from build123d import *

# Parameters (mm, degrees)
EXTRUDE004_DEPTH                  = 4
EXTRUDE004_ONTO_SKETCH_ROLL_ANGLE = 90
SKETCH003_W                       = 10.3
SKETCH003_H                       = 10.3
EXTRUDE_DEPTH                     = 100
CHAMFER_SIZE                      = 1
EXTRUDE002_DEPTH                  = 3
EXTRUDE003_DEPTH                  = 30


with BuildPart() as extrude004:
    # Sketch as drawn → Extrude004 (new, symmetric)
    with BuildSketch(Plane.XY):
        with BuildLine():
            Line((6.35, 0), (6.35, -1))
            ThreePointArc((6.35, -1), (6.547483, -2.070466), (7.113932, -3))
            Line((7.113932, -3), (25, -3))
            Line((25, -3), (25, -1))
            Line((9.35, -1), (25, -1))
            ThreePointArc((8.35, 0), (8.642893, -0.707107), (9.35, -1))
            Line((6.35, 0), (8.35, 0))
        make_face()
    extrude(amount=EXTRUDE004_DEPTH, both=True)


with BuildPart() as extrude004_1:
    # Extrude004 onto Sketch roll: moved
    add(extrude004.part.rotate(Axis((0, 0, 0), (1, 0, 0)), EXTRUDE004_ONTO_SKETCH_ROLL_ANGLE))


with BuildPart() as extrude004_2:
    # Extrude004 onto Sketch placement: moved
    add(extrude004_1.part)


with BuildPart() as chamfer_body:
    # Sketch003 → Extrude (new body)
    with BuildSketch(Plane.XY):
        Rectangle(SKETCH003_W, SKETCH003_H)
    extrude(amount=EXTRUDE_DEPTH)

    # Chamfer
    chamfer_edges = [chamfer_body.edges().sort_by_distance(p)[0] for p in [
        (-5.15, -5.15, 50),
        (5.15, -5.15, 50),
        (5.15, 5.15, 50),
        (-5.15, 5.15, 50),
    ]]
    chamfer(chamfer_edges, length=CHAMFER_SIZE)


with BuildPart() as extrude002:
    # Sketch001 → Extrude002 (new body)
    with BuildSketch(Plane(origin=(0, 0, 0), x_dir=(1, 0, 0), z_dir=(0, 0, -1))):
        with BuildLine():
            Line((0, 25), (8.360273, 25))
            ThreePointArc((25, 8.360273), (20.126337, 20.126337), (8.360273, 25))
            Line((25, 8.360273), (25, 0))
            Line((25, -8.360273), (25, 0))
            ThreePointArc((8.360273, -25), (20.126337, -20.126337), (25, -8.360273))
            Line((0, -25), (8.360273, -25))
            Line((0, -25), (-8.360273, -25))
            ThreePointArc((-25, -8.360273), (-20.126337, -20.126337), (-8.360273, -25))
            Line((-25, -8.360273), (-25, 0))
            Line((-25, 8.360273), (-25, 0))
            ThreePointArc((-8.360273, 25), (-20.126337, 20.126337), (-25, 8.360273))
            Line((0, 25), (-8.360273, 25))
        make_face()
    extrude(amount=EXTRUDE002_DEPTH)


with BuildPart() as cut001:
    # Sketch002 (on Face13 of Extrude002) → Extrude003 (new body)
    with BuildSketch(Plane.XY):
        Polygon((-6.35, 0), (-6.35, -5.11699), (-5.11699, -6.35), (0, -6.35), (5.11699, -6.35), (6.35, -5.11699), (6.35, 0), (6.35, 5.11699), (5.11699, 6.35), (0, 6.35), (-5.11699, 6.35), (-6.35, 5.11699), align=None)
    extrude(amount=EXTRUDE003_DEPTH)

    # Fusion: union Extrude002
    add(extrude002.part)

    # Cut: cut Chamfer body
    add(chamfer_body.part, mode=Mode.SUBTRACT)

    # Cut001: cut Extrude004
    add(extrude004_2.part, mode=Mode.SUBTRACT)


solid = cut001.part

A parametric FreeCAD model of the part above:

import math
import FreeCAD as App
import Part
import Sketcher
from FreeCAD import Vector
Q = App.Units.Quantity


def edges_at(feature, points):
    """Names of the edges that pass closest to the given points."""
    edges = feature.Shape.Edges
    near = lambda p: min(range(len(edges)), key=lambda i: edges[i].distToShape(Part.Vertex(*p))[0])
    return sorted({f"Edge{near(p) + 1}" for p in points})


def add_polygon(sketch, points):
    """Adds a closed chain of lines whose ends are joined by coincident constraints."""
    first, n = sketch.GeometryCount, len(points)
    for a, b in zip(points, points[1:] + points[:1]):
        sketch.addGeometry(Part.LineSegment(App.Vector(*a, 0), App.Vector(*b, 0)), False)
    for i in range(n):
        sketch.addConstraint(Sketcher.Constraint("Coincident", first + i, 2, first + (i + 1) % n, 1))

doc = App.newDocument("Part")
body = doc.addObject("PartDesign::Body", "Body")

sketch1 = body.newObject("Sketcher::SketchObject", "Sketch")
sketch1.AttachmentSupport = (doc.getObject("XY_Plane"), [""])
sketch1.MapMode = "FlatFace"
sketch1.addGeometry([
    Part.LineSegment(Vector(6.3, 0, 0), Vector(6.3, -1, 0)),
    Part.ArcOfCircle(Part.Circle(Vector(9.4, -1, 0), Vector(0, 0, 1), 3), math.radians(-180), math.radians(-138)),
    Part.LineSegment(Vector(7.1, -3, 0), Vector(25, -3, 0)),
    Part.LineSegment(Vector(25, -3, 0), Vector(25, -1, 0)),
    Part.LineSegment(Vector(25, -1, 0), Vector(9.3, -1, 0)),
    Part.ArcOfCircle(Part.Circle(Vector(9.3, 0, 0), Vector(0, 0, 1), 1), math.radians(180), math.radians(270)),
    Part.LineSegment(Vector(8.3, 0, 0), Vector(6.3, 0, 0)),
], False)
sketch1.addConstraint([
    Sketcher.Constraint("Tangent", 0, 2, 1, 1),
    Sketcher.Constraint("Coincident", 1, 2, 2, 1),
    Sketcher.Constraint("Coincident", 2, 2, 3, 1),
    Sketcher.Constraint("Coincident", 3, 2, 4, 1),
    Sketcher.Constraint("Tangent", 4, 2, 5, 2),
    Sketcher.Constraint("Coincident", 5, 1, 6, 1),
    Sketcher.Constraint("Coincident", 6, 2, 0, 1),
    Sketcher.Constraint("Vertical", 0),
    Sketcher.Constraint("Horizontal", 2),
    Sketcher.Constraint("Vertical", 3),
    Sketcher.Constraint("Horizontal", 4),
    Sketcher.Constraint("Horizontal", 6),
    Sketcher.Constraint("Coincident", 4, 2, 1, 3),
    Sketcher.Constraint("PointOnObject", 5, 3, -1),
    Sketcher.Constraint("PointOnObject", 5, 1, -1),
    Sketcher.Constraint("Equal", 6, 3),
    Sketcher.Constraint("Radius", 5, Q("0.999999 mm")),
    Sketcher.Constraint("DistanceX", 6, 2, 6, 1, Q("2 mm")),
    Sketcher.Constraint("DistanceX", -1, 1, 2, 2, Q("25 mm")),
    Sketcher.Constraint("DistanceX", 4, 2, 4, 1, Q("15.65 mm")),
])
pad1 = body.newObject("PartDesign::Pad", "Pad")
pad1.Profile = sketch1
pad1.Length = 8
pad1.Midplane = True
body2 = doc.addObject("PartDesign::Body", "Body001")
doc.recompute()

body.Placement = App.Placement(Vector(0, 0, 0), App.Rotation(Vector(1, 0, 0), 90))
boolean = body2.newObject("PartDesign::Boolean", "Boolean")
boolean.Type = "Fuse"
boolean.addObjects([body])
body3 = doc.addObject("PartDesign::Body", "Body002")

sketch2 = body3.newObject("Sketcher::SketchObject", "Sketch001")
sketch2.AttachmentSupport = (doc.getObject("XY_Plane002"), [""])
sketch2.MapMode = "FlatFace"
add_polygon(sketch2, [(-5, 5), (-5, -5), (5, -5), (5, 5)])
sketch2.addConstraint([
    Sketcher.Constraint("Vertical", 0),
    Sketcher.Constraint("Horizontal", 1),
    Sketcher.Constraint("Vertical", 2),
    Sketcher.Constraint("Horizontal", 3),
    Sketcher.Constraint("Symmetric", 0, 2, 2, 2, -1, 1),
    Sketcher.Constraint("Equal", 3, 0),
    Sketcher.Constraint("DistanceX", 1, 1, 1, 2, Q("10.3 mm")),
])
pad2 = body3.newObject("PartDesign::Pad", "Pad001")
pad2.Profile = sketch2
pad2.Length = 100
doc.recompute()

chamfer = body3.newObject("PartDesign::Chamfer", "Chamfer")
chamfer.Base = (pad2, edges_at(pad2, [
    (-5.15, -5.15, 50),
    (5.15, -5.15, 50),
    (5.15, 5.15, 50),
    (-5.15, 5.15, 50),
]))
chamfer.Size = 1
body4 = doc.addObject("PartDesign::Body", "Body003")

sketch3 = body4.newObject("Sketcher::SketchObject", "Sketch002")
sketch3.AttachmentSupport = (doc.getObject("XY_Plane003"), [""])
sketch3.MapMode = "FlatFace"
sketch3.addGeometry([
    Part.LineSegment(Vector(8, -25, 0), Vector(-8, -25, 0)),
    Part.ArcOfCircle(Part.Circle(Vector(-8, -8, 0), Vector(0, 0, 1), 17), math.radians(180), math.radians(270)),
    Part.LineSegment(Vector(-25, -8, 0), Vector(-25, 8, 0)),
    Part.ArcOfCircle(Part.Circle(Vector(-8, 8, 0), Vector(0, 0, 1), 17), math.radians(90), math.radians(180)),
    Part.LineSegment(Vector(-8, 25, 0), Vector(8, 25, 0)),
    Part.ArcOfCircle(Part.Circle(Vector(8, 8, 0), Vector(0, 0, 1), 17), math.radians(0), math.radians(90)),
    Part.LineSegment(Vector(25, 8, 0), Vector(25, -8, 0)),
    Part.ArcOfCircle(Part.Circle(Vector(8, -8, 0), Vector(0, 0, 1), 17), math.radians(-90), math.radians(0)),
], False)
sketch3.addConstraint([
    Sketcher.Constraint("Tangent", 0, 2, 1, 2),
    Sketcher.Constraint("Tangent", 1, 1, 2, 1),
    Sketcher.Constraint("Tangent", 2, 2, 3, 2),
    Sketcher.Constraint("Tangent", 3, 1, 4, 1),
    Sketcher.Constraint("Tangent", 4, 2, 5, 2),
    Sketcher.Constraint("Tangent", 5, 1, 6, 1),
    Sketcher.Constraint("Tangent", 6, 2, 7, 2),
    Sketcher.Constraint("Tangent", 7, 1, 0, 1),
    Sketcher.Constraint("Horizontal", 0),
    Sketcher.Constraint("Vertical", 2),
    Sketcher.Constraint("Horizontal", 4),
    Sketcher.Constraint("Vertical", 6),
    Sketcher.Constraint("Equal", 1, 3),
    Sketcher.Constraint("Equal", 3, 5),
    Sketcher.Constraint("Equal", 5, 7),
    Sketcher.Constraint("Symmetric", 1, 3, 5, 3, -1, 1),
    Sketcher.Constraint("Equal", 4, 2),
    Sketcher.Constraint("DistanceY", 0, 2, -1, 1, Q("25 mm")),
    Sketcher.Constraint("Radius", 1, Q("16.639726 mm")),
])
pad3 = body4.newObject("PartDesign::Pad", "Pad002")
pad3.Profile = sketch3
pad3.Length = 3
pad3.Reversed = True
body5 = doc.addObject("PartDesign::Body", "Body004")

sketch4 = body5.newObject("Sketcher::SketchObject", "Sketch003")
sketch4.AttachmentSupport = (doc.getObject("XY_Plane004"), [""])
sketch4.MapMode = "FlatFace"
add_polygon(sketch4, [(-6.3, -5.1), (-5.1, -6.3), (5.1, -6.3), (6.3, -5.1), (6.3, 5.1), (5.1, 6.3), (-5.1, 6.3), (-6.3, 5.1)])
sketch4.addConstraint([
    Sketcher.Constraint("Horizontal", 1),
    Sketcher.Constraint("Vertical", 3),
    Sketcher.Constraint("Horizontal", 5),
    Sketcher.Constraint("Vertical", 7),
    Sketcher.Constraint("Symmetric", 0, 2, 4, 2, -1, 1),
    Sketcher.Constraint("Symmetric", 2, 2, 6, 2, -1, 1),
    Sketcher.Constraint("Perpendicular", 0, 2),
    Sketcher.Constraint("Perpendicular", 2, 4),
    Sketcher.Constraint("Perpendicular", 4, 6),
    Sketcher.Constraint("Horizontal", 3, 2, 6, 2),
    Sketcher.Constraint("Vertical", 1, 2, 4, 2),
    Sketcher.Constraint("Equal", 5, 3),
    Sketcher.Constraint("DistanceY", 1, 2, 4, 2, Q("12.7 mm")),
    Sketcher.Constraint("DistanceX", 1, 1, 1, 2, Q("10.23398 mm")),
])
pad4 = body5.newObject("PartDesign::Pad", "Pad003")
pad4.Profile = sketch4
pad4.Length = 30
doc.recompute()

boolean2 = body5.newObject("PartDesign::Boolean", "Boolean001")
boolean2.Type = "Fuse"
boolean2.addObjects([body4])
doc.recompute()

boolean3 = body5.newObject("PartDesign::Boolean", "Boolean002")
boolean3.Type = "Cut"
boolean3.addObjects([body3])
doc.recompute()

boolean4 = body5.newObject("PartDesign::Boolean", "Boolean003")
boolean4.Type = "Cut"
boolean4.addObjects([body2])

doc.recompute()
